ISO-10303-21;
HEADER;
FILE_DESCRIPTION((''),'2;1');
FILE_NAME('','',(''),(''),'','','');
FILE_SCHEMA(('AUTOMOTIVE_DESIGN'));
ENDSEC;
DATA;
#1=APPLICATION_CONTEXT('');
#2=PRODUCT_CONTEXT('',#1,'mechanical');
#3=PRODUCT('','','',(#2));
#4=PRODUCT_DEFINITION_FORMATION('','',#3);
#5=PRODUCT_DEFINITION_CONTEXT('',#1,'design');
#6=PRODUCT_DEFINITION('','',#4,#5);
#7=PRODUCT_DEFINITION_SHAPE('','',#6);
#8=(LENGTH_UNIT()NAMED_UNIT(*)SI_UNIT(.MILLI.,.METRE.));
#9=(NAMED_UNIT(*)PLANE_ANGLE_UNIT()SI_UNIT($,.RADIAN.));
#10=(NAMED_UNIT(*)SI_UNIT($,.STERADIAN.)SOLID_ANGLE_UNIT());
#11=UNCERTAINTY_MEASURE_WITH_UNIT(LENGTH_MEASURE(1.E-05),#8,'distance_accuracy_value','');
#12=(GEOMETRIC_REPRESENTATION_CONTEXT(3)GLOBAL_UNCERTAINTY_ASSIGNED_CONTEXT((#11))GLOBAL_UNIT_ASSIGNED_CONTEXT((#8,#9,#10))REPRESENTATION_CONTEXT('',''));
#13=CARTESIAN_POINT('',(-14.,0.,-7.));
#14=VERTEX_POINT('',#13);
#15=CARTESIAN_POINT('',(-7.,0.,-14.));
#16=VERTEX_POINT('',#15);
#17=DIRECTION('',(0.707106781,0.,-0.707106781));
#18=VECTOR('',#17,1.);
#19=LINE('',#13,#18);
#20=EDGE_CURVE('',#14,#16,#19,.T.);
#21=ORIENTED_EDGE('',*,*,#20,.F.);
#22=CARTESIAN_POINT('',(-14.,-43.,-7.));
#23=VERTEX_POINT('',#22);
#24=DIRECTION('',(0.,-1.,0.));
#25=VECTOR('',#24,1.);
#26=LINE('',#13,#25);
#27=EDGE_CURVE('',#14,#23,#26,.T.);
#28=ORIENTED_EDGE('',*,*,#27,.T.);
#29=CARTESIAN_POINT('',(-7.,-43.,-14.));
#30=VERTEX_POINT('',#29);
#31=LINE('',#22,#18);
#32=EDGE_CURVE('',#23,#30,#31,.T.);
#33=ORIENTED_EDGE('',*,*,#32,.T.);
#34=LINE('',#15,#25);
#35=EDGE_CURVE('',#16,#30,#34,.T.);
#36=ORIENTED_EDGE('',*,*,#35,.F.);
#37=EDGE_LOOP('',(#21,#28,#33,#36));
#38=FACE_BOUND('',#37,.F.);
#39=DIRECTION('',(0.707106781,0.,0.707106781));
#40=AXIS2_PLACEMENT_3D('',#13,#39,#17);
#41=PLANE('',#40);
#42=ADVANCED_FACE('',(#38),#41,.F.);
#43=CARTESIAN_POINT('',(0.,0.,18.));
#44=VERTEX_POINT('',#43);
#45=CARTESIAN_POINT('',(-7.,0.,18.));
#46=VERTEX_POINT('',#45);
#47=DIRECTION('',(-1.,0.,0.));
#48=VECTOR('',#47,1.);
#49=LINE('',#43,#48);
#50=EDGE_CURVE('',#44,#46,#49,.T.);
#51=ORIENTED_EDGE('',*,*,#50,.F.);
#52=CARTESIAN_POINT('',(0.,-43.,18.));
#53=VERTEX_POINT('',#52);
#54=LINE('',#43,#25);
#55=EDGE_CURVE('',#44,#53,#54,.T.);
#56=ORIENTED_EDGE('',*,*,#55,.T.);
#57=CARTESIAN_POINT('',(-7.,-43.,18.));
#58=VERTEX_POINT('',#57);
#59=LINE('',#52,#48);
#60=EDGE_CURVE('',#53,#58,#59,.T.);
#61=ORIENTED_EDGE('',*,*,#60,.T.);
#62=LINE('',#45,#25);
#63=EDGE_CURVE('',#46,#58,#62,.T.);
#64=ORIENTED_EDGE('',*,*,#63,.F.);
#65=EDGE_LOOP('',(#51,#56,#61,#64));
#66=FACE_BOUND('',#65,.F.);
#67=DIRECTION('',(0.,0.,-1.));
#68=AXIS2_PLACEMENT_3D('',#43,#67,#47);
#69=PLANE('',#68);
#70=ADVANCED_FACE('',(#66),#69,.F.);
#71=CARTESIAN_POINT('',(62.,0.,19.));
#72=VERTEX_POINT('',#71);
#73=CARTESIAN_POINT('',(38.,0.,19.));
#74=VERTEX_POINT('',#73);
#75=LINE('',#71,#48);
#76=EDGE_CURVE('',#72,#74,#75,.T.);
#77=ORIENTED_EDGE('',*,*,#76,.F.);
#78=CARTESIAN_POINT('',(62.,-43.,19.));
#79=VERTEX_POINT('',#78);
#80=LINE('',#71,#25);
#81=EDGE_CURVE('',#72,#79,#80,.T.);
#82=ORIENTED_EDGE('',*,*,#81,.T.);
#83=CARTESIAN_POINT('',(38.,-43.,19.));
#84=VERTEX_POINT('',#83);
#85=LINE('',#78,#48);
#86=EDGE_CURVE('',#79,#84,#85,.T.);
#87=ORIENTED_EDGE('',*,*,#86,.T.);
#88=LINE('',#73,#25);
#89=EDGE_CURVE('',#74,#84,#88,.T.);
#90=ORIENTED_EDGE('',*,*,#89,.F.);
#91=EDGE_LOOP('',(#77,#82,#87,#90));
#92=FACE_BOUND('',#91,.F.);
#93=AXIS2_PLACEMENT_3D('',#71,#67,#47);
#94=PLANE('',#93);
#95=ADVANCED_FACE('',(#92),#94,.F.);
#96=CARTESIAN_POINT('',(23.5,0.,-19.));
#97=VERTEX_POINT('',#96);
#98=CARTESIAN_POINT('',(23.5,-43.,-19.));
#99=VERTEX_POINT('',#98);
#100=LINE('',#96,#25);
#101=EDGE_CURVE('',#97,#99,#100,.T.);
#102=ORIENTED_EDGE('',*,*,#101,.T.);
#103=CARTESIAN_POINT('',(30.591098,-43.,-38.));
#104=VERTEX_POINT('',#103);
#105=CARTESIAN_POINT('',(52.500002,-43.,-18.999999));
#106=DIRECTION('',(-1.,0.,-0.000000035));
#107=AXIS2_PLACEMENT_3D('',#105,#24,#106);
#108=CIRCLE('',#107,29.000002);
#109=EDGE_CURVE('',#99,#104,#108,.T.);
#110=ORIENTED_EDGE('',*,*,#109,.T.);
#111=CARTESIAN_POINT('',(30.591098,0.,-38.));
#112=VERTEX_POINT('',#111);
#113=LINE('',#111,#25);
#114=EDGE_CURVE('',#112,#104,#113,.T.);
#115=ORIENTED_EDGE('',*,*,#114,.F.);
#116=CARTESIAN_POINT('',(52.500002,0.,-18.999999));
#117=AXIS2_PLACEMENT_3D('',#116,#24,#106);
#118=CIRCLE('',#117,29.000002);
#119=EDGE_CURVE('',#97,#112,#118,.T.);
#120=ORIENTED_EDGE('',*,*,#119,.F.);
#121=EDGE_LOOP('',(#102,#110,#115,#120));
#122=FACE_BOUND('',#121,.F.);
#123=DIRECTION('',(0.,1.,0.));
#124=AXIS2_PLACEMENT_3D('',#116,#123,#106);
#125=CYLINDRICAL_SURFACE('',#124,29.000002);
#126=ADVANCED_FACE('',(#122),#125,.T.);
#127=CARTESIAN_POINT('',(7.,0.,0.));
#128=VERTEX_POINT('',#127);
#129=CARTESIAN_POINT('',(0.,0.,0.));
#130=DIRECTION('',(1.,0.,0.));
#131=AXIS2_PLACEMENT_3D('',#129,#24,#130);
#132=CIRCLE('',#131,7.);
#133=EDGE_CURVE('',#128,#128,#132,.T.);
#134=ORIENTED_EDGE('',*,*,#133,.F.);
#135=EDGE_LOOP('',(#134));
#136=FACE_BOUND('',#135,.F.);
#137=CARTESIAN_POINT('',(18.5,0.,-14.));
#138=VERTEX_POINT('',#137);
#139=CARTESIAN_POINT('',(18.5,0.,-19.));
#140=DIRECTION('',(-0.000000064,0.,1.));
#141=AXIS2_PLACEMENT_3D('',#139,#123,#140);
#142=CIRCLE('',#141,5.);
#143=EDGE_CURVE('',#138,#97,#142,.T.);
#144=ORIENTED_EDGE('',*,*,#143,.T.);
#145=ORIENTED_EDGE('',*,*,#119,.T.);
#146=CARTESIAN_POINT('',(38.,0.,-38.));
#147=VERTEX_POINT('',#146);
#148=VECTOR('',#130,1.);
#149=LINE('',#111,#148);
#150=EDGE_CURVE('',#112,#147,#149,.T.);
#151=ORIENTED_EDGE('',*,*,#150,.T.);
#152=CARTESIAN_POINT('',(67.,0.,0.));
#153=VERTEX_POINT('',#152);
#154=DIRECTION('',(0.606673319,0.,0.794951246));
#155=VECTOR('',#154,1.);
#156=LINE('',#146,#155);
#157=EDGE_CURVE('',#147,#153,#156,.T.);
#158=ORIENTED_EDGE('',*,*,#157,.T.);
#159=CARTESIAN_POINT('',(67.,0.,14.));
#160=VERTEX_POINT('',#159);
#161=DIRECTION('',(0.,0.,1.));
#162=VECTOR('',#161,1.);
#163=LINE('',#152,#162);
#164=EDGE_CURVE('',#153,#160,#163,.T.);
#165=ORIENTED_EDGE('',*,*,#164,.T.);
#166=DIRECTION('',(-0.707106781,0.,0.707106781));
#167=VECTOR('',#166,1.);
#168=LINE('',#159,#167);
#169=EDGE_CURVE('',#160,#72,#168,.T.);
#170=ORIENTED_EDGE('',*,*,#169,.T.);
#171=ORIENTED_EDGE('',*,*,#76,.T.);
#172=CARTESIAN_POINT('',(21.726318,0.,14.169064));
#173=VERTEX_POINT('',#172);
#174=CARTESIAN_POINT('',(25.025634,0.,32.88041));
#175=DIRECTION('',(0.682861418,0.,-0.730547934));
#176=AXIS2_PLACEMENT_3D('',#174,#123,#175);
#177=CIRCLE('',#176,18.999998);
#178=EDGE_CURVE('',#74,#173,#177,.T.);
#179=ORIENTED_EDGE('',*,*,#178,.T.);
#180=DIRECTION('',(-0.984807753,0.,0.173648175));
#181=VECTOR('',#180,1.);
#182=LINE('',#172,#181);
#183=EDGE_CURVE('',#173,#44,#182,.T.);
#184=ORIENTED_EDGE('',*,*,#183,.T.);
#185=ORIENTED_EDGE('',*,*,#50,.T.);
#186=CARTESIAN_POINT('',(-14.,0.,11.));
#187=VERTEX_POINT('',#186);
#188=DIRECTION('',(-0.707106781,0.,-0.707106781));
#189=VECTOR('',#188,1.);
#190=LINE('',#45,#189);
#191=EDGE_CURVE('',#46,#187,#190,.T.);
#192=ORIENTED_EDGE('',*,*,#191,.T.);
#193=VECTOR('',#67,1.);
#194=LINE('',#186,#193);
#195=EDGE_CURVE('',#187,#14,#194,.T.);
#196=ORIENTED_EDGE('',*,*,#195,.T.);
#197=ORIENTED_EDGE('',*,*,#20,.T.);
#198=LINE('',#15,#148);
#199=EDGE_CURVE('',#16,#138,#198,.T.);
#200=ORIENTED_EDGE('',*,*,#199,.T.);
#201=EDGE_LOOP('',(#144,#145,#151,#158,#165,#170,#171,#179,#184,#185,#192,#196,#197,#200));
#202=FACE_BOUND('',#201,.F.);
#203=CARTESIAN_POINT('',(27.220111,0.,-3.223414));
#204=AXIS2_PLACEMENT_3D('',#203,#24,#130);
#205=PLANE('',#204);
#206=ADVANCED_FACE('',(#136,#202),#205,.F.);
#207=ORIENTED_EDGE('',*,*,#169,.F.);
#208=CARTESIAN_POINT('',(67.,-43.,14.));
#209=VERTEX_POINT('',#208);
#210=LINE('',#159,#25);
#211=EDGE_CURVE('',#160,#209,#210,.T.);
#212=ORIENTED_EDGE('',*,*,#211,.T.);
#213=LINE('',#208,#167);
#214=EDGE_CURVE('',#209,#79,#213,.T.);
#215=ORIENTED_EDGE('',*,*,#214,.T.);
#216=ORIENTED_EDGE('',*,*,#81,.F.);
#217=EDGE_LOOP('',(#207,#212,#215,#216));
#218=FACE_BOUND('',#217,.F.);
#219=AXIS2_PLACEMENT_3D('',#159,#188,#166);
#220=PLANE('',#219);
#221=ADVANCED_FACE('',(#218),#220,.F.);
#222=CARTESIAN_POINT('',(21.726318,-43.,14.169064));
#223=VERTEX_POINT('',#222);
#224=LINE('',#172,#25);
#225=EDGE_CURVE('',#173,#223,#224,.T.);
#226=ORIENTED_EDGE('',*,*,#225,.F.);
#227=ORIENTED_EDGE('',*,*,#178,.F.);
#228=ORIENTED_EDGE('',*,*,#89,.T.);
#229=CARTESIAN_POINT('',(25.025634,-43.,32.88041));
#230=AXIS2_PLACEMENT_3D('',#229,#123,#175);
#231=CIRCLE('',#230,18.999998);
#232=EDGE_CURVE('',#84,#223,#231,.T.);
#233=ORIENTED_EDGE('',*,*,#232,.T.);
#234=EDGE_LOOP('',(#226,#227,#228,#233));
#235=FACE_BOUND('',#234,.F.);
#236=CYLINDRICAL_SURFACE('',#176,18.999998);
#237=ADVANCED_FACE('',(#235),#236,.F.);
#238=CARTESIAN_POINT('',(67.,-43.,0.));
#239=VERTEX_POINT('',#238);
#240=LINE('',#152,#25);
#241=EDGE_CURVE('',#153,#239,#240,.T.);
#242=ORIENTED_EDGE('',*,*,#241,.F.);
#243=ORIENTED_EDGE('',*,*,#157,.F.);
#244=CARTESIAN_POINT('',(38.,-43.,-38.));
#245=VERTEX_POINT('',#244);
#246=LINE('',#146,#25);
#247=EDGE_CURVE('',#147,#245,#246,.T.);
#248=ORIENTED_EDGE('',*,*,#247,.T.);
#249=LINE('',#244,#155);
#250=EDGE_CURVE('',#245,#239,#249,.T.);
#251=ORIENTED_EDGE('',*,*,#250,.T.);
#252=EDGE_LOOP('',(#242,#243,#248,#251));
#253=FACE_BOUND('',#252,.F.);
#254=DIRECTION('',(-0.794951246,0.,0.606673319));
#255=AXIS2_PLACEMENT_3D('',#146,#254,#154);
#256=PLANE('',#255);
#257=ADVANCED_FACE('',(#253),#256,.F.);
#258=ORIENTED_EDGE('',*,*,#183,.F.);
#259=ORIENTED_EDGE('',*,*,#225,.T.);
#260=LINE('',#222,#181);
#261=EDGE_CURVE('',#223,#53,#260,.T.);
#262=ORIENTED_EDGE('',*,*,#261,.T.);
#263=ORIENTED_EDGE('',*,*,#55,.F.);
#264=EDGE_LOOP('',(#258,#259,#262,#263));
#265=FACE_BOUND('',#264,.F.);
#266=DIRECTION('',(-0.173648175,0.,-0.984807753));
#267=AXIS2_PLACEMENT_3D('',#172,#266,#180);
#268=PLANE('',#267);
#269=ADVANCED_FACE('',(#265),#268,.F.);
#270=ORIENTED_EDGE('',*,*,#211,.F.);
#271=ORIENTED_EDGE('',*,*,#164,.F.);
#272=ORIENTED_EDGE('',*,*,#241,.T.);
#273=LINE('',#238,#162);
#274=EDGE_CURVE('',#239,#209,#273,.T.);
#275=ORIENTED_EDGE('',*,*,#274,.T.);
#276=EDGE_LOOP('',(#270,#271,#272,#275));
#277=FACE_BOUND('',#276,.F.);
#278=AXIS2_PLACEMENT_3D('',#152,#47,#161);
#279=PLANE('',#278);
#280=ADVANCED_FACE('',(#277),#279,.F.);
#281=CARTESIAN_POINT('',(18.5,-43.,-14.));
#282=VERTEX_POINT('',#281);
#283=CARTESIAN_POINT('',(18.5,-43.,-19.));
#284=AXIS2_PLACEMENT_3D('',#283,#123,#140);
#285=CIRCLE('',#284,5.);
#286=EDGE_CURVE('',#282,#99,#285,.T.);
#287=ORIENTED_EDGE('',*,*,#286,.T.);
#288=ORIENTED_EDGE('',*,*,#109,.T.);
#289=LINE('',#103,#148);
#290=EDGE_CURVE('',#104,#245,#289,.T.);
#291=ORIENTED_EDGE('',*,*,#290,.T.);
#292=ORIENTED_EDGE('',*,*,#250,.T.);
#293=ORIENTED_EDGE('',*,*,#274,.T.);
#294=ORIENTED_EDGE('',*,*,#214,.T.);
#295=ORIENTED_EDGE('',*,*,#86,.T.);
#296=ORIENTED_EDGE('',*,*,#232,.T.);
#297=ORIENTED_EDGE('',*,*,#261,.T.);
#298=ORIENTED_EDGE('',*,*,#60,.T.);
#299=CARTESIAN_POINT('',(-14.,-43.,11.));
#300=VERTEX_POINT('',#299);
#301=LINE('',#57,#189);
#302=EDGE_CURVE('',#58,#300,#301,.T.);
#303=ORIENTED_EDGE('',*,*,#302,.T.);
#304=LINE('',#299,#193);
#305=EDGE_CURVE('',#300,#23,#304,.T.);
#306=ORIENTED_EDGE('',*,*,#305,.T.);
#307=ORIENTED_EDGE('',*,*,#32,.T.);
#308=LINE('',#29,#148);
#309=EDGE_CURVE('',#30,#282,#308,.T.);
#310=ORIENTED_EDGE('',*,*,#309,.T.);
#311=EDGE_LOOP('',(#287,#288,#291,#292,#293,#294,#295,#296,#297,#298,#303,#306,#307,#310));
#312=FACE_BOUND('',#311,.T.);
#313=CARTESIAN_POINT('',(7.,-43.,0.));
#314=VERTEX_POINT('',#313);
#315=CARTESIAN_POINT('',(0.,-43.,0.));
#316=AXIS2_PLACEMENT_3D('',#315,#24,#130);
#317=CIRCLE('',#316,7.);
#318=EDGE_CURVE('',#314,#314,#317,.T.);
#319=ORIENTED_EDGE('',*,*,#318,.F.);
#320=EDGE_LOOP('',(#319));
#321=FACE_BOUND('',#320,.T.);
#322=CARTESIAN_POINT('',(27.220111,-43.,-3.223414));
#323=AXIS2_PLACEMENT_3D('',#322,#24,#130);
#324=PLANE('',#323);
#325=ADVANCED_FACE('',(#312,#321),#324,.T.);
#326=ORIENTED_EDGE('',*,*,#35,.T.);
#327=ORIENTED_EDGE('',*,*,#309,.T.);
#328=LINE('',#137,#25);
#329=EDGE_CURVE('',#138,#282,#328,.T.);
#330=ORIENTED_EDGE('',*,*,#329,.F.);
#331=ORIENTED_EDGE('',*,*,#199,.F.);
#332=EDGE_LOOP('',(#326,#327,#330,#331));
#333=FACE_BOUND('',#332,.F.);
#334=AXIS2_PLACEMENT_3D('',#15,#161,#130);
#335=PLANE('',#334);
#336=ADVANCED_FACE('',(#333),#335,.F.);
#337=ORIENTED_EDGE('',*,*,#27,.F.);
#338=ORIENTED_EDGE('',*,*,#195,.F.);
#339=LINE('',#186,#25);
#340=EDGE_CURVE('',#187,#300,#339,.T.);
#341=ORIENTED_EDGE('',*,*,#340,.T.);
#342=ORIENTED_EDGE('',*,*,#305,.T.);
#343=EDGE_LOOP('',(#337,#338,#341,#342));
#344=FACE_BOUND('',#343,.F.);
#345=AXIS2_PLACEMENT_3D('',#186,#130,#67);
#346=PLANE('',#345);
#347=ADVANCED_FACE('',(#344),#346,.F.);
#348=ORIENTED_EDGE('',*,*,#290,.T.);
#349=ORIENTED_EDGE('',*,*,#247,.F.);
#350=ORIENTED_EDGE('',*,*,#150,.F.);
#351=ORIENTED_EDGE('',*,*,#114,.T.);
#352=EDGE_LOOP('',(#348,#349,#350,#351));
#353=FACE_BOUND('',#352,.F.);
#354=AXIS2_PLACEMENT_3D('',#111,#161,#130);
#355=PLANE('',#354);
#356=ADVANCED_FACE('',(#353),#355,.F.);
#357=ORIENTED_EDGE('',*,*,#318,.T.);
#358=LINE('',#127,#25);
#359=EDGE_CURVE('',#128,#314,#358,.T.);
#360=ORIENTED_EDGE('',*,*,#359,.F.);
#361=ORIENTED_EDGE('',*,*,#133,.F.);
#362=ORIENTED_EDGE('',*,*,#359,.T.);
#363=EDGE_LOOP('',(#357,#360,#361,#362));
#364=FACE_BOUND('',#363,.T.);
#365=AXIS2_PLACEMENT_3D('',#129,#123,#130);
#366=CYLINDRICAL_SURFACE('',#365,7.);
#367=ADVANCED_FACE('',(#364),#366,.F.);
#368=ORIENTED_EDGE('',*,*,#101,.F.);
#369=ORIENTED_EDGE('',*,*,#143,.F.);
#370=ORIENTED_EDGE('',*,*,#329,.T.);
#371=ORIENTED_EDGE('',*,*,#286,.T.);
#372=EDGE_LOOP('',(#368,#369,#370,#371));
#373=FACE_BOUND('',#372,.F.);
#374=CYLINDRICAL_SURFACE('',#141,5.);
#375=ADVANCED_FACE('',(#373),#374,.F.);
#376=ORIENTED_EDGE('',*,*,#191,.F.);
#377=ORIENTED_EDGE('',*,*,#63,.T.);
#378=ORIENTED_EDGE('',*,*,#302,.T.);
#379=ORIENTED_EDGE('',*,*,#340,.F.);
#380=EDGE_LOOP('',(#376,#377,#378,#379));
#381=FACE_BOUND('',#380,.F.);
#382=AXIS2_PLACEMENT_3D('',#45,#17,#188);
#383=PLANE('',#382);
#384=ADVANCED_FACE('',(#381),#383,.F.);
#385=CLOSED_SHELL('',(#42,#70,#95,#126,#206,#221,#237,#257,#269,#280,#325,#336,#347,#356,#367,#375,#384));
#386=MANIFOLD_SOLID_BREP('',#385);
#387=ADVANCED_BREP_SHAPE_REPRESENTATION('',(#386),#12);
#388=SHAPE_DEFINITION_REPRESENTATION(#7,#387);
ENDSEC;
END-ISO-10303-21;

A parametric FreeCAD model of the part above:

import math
import FreeCAD as App
import Part
import Sketcher

V = App.Vector
Q = App.Units.Quantity

doc = App.newDocument("Part")
body = doc.addObject("PartDesign::Body", "Body")

# Sketch on XZ plane
sketch1 = doc.addObject("Sketcher::SketchObject", "Sketch")
body.addObject(sketch1)
sketch1.AttachmentSupport = (doc.XZ_Plane, [""])
sketch1.MapMode = "FlatFace"
sketch1.addGeometry(Part.LineSegment(V(38, -38, 0), V(67, 0, 0)), False)
sketch1.addGeometry(Part.LineSegment(V(67, 0, 0), V(67, 14, 0)), False)
sketch1.addGeometry(Part.LineSegment(V(67, 14, 0), V(62, 19, 0)), False)
sketch1.addGeometry(Part.LineSegment(V(62, 19, 0), V(38, 19, 0)), False)
sketch1.addGeometry(Part.ArcOfCircle(Part.Circle(V(25.025634, 32.88041, 0), V(0, 0, 1), 18.999998), math.radians(-100.000003), math.radians(-46.932349)), False)
sketch1.addGeometry(Part.LineSegment(V(21.726318, 14.169064, 0), V(0, 18, 0)), False)
sketch1.addGeometry(Part.LineSegment(V(0, 18, 0), V(-7, 18, 0)), False)
sketch1.addGeometry(Part.LineSegment(V(-7, 18, 0), V(-14, 11, 0)), False)
sketch1.addGeometry(Part.LineSegment(V(-14, 11, 0), V(-14, -7, 0)), False)
sketch1.addGeometry(Part.LineSegment(V(-14, -7, 0), V(-7, -14, 0)), False)
sketch1.addGeometry(Part.LineSegment(V(-7, -14, 0), V(18.5, -14, 0)), False)
sketch1.addGeometry(Part.ArcOfCircle(Part.Circle(V(18.5, -19, 0), V(0, 0, 1), 5), math.radians(-0.000004), math.radians(90.000004)), False)
sketch1.addGeometry(Part.ArcOfCircle(Part.Circle(V(52.500002, -18.999999, 0), V(0, 0, 1), 29.000002), math.radians(-179.999998), math.radians(-139.067276)), False)
sketch1.addGeometry(Part.LineSegment(V(30.591098, -38, 0), V(38, -38, 0)), False)
sketch1.addGeometry(Part.Circle(V(0, 0, 0), V(0, 0, 1), 7), False)
sketch1.addConstraint(Sketcher.Constraint("Coincident", 0, 2, 1, 1))
sketch1.addConstraint(Sketcher.Constraint("Coincident", 1, 2, 2, 1))
sketch1.addConstraint(Sketcher.Constraint("Coincident", 2, 2, 3, 1))
sketch1.addConstraint(Sketcher.Constraint("Coincident", 3, 2, 4, 2))
sketch1.addConstraint(Sketcher.Constraint("Tangent", 4, 1, 5, 1))
sketch1.addConstraint(Sketcher.Constraint("Coincident", 5, 2, 6, 1))
sketch1.addConstraint(Sketcher.Constraint("Coincident", 6, 2, 7, 1))
sketch1.addConstraint(Sketcher.Constraint("Coincident", 7, 2, 8, 1))
sketch1.addConstraint(Sketcher.Constraint("Coincident", 8, 2, 9, 1))
sketch1.addConstraint(Sketcher.Constraint("Coincident", 9, 2, 10, 1))
sketch1.addConstraint(Sketcher.Constraint("Tangent", 10, 2, 11, 2))
sketch1.addConstraint(Sketcher.Constraint("Tangent", 11, 1, 12, 1))
sketch1.addConstraint(Sketcher.Constraint("Coincident", 12, 2, 13, 1))
sketch1.addConstraint(Sketcher.Constraint("Coincident", 13, 2, 0, 1))
sketch1.addConstraint(Sketcher.Constraint("Vertical", 1))
sketch1.addConstraint(Sketcher.Constraint("Horizontal", 3))
sketch1.addConstraint(Sketcher.Constraint("Horizontal", 6))
sketch1.addConstraint(Sketcher.Constraint("Vertical", 8))
sketch1.addConstraint(Sketcher.Constraint("Horizontal", 10))
sketch1.addConstraint(Sketcher.Constraint("Horizontal", 13))
sketch1.addConstraint(Sketcher.Constraint("Coincident", 14, 3, -1, 1))
sketch1.addConstraint(Sketcher.Constraint("PointOnObject", 0, 2, -1))
sketch1.addConstraint(Sketcher.Constraint("PointOnObject", 5, 2, -2))
sketch1.addConstraint(Sketcher.Constraint("Perpendicular", 2, 7))
sketch1.addConstraint(Sketcher.Constraint("Perpendicular", 7, 9))
sketch1.addConstraint(Sketcher.Constraint("Horizontal", 11, 3, 12, 3))
sketch1.addConstraint(Sketcher.Constraint("Vertical", 6, 2, 9, 2))
sketch1.addConstraint(Sketcher.Constraint("Vertical", 3, 2, 13, 2))
sketch1.addConstraint(Sketcher.Constraint("Equal", 7, 9))
sketch1.addConstraint(Sketcher.Constraint("Diameter", 14, Q("14 mm")))
sketch1.addConstraint(Sketcher.Constraint("Radius", 4, Q("18.999998 mm")))
sketch1.addConstraint(Sketcher.Constraint("Radius", 11, Q("5 mm")))
sketch1.addConstraint(Sketcher.Constraint("Radius", 12, Q("29.000002 mm")))
sketch1.addConstraint(Sketcher.Constraint("DistanceX", 3, 2, 3, 1, Q("24 mm")))
sketch1.addConstraint(Sketcher.Constraint("DistanceX", 6, 2, 6, 1, Q("7 mm")))
sketch1.addConstraint(Sketcher.Constraint("DistanceY", 1, 1, 1, 2, Q("14 mm")))
sketch1.addConstraint(Sketcher.Constraint("DistanceY", 8, 2, 8, 1, Q("18 mm")))
sketch1.addConstraint(Sketcher.Constraint("Angle", 5, Q("170 deg")))
sketch1.addConstraint(Sketcher.Constraint("DistanceX", 10, 1, 10, 2, Q("25.5 mm")))
sketch1.addConstraint(Sketcher.Constraint("DistanceY", 11, 3, -1, 1, Q("19 mm")))
sketch1.addConstraint(Sketcher.Constraint("DistanceX", -1, 1, 0, 2, Q("67 mm")))
sketch1.addConstraint(Sketcher.Constraint("DistanceX", -1, 1, 2, 2, Q("62 mm")))
sketch1.addConstraint(Sketcher.Constraint("DistanceY", -1, 1, 5, 2, Q("18 mm")))
sketch1.addConstraint(Sketcher.Constraint("DistanceY", 12, 2, -1, 1, Q("38 mm")))
pad1 = doc.addObject("PartDesign::Pad", "Pad")
body.addObject(pad1)
pad1.Profile = sketch1
pad1.Length = 43

doc.recompute()
